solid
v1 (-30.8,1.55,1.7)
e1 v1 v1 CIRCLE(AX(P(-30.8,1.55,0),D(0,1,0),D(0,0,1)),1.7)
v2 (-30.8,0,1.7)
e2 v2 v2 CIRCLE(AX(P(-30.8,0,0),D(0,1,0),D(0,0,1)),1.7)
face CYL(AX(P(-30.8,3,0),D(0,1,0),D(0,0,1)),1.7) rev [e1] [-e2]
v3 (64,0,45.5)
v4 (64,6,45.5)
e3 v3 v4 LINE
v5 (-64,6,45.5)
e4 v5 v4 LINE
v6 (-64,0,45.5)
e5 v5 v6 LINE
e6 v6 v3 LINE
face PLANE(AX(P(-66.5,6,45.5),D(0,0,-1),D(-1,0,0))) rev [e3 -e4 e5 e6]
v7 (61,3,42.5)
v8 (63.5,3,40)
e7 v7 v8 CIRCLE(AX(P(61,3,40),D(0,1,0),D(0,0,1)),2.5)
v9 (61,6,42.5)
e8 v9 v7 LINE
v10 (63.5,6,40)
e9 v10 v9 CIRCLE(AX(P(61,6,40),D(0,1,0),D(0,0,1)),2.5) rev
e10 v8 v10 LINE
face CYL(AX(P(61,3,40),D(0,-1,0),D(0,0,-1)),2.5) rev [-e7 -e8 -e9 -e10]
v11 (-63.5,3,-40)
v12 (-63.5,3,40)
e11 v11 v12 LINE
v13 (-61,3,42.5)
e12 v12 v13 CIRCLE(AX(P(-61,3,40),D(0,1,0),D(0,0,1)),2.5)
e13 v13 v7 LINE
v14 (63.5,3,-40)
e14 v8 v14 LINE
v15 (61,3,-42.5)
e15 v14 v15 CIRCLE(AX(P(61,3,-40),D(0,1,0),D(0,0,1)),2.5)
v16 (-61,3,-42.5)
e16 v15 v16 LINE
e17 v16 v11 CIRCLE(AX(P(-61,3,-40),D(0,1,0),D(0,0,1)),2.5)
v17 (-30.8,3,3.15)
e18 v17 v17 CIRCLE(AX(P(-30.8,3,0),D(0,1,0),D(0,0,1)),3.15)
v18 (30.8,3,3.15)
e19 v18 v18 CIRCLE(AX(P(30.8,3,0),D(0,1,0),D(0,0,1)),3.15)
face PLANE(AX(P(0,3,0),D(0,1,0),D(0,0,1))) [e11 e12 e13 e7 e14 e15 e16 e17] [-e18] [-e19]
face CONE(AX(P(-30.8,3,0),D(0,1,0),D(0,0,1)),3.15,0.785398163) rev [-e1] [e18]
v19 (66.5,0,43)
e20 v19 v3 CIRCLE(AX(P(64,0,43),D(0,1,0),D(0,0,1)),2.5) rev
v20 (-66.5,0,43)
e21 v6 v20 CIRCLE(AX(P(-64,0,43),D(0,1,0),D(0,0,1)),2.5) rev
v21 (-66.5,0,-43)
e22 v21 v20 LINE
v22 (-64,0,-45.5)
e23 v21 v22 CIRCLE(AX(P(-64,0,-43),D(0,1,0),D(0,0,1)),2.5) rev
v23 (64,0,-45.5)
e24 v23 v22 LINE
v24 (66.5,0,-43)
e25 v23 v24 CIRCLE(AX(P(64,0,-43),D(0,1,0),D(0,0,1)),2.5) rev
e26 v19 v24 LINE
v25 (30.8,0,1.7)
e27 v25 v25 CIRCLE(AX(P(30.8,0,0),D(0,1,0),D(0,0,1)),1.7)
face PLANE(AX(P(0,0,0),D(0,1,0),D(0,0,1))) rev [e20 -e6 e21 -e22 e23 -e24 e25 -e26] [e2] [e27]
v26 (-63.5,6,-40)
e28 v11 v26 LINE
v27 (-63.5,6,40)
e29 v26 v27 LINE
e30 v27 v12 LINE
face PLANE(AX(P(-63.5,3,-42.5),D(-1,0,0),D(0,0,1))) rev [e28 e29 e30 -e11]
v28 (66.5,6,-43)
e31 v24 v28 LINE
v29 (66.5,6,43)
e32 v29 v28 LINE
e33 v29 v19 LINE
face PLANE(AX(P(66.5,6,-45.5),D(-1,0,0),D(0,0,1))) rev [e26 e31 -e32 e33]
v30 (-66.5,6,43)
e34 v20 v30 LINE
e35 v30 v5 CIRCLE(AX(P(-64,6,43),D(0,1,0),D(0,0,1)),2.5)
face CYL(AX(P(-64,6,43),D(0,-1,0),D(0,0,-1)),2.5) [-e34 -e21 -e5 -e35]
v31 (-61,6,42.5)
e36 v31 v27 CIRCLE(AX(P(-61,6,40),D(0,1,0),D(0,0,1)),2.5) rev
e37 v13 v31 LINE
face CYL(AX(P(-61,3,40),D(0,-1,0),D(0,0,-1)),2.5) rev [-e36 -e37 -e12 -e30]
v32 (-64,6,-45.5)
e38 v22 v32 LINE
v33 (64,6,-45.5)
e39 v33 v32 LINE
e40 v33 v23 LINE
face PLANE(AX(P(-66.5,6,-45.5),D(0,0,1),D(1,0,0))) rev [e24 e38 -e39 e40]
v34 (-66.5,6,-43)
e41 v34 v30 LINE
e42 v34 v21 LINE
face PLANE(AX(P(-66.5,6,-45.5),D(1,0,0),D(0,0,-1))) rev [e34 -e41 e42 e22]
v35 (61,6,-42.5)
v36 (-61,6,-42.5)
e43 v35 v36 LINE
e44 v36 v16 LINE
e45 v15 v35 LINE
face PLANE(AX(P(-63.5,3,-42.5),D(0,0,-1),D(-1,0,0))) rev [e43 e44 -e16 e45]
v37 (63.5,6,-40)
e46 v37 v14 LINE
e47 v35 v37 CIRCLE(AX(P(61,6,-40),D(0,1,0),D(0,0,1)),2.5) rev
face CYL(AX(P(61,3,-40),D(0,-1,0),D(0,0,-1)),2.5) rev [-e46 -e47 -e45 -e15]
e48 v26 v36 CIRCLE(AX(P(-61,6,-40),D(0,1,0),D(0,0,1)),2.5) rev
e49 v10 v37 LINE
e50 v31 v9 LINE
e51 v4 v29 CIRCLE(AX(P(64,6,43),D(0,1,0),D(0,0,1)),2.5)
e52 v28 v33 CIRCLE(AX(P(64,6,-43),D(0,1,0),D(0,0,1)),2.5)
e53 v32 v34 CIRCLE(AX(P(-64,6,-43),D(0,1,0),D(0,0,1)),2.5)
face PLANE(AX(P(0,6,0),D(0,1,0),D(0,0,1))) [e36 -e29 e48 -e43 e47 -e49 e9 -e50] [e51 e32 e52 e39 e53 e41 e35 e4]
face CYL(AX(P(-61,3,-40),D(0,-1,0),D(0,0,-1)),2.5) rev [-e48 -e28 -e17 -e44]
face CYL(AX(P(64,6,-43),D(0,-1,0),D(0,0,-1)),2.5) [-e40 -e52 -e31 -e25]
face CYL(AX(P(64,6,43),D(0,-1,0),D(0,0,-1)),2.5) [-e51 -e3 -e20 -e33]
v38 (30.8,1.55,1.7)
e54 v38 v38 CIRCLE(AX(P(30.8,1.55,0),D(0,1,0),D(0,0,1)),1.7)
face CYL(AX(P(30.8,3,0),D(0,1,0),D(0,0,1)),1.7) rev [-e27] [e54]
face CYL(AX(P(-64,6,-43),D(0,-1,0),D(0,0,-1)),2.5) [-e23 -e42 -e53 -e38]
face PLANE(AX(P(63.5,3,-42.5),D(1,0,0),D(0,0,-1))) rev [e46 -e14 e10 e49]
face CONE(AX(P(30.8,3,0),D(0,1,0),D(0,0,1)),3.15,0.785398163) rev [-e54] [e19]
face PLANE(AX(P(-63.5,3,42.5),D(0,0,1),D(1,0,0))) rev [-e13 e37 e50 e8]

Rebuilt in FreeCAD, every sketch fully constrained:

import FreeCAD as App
import Part
import Sketcher
from FreeCAD import Vector
Q = App.Units.Quantity


def edges_at(feature, points):
    """Names of the edges that pass closest to the given points."""
    edges = feature.Shape.Edges
    near = lambda p: min(range(len(edges)), key=lambda i: edges[i].distToShape(Part.Vertex(*p))[0])
    return sorted({f"Edge{near(p) + 1}" for p in points})

doc = App.newDocument("Part")
body = doc.addObject("PartDesign::Body", "Body")

sketch1 = doc.addObject("Sketcher::SketchObject", "Sketch")
body.addObject(sketch1)
sketch1.AttachmentSupport = (doc.XZ_Plane, [""])
sketch1.MapMode = "FlatFace"
sketch1.addGeometry([
    Part.LineSegment(Vector(-66, -46, 0), Vector(-66, 46, 0)),
    Part.LineSegment(Vector(-66, 46, 0), Vector(66, 46, 0)),
    Part.LineSegment(Vector(66, 46, 0), Vector(66, -46, 0)),
    Part.LineSegment(Vector(66, -46, 0), Vector(-66, -46, 0)),
], False)
sketch1.addConstraint([
    Sketcher.Constraint("Coincident", 0, 2, 1, 1),
    Sketcher.Constraint("Coincident", 1, 2, 2, 1),
    Sketcher.Constraint("Coincident", 2, 2, 3, 1),
    Sketcher.Constraint("Coincident", 3, 2, 0, 1),
    Sketcher.Constraint("Vertical", 0),
    Sketcher.Constraint("Horizontal", 1),
    Sketcher.Constraint("Vertical", 2),
    Sketcher.Constraint("Horizontal", 3),
    Sketcher.Constraint("Symmetric", 0, 2, 2, 2, -1, 1),
    Sketcher.Constraint("DistanceX", 1, 1, 1, 2, Q("133 mm")),
    Sketcher.Constraint("DistanceY", 0, 1, 0, 2, Q("91 mm")),
])
pad1 = doc.addObject("PartDesign::Pad", "Pad")
body.addObject(pad1)
pad1.Profile = sketch1
pad1.Length = 6
pad1.Reversed = True

sketch2 = doc.addObject("Sketcher::SketchObject", "Sketch001")
body.addObject(sketch2)
sketch2.AttachmentSupport = (doc.XZ_Plane, [""])
sketch2.MapMode = "FlatFace"
sketch2.AttachmentOffset = App.Placement(Vector(0, 0, -6), App.Rotation())
sketch2.addGeometry([
    Part.LineSegment(Vector(-64, -42, 0), Vector(-64, 42, 0)),
    Part.LineSegment(Vector(-64, 42, 0), Vector(64, 42, 0)),
    Part.LineSegment(Vector(64, 42, 0), Vector(64, -42, 0)),
    Part.LineSegment(Vector(64, -42, 0), Vector(-64, -42, 0)),
], False)
sketch2.addConstraint([
    Sketcher.Constraint("Coincident", 0, 2, 1, 1),
    Sketcher.Constraint("Coincident", 1, 2, 2, 1),
    Sketcher.Constraint("Coincident", 2, 2, 3, 1),
    Sketcher.Constraint("Coincident", 3, 2, 0, 1),
    Sketcher.Constraint("Vertical", 0),
    Sketcher.Constraint("Horizontal", 1),
    Sketcher.Constraint("Vertical", 2),
    Sketcher.Constraint("Horizontal", 3),
    Sketcher.Constraint("Symmetric", 0, 2, 2, 2, -1, 1),
    Sketcher.Constraint("DistanceX", 1, 1, 1, 2, Q("127 mm")),
    Sketcher.Constraint("DistanceY", 0, 1, 0, 2, Q("85 mm")),
])
pocket1 = doc.addObject("PartDesign::Pocket", "Pocket")
body.addObject(pocket1)
pocket1.Profile = sketch2
pocket1.Length = 3
pocket1.Reversed = True
doc.recompute()

fillet = doc.addObject("PartDesign::Fillet", "Fillet")
body.addObject(fillet)
fillet.Base = (pocket1, edges_at(pocket1, [
    (63.5, 4.5, -42.5),
    (63.5, 4.5, 42.5),
    (-63.5, 4.5, 42.5),
    (-63.5, 4.5, -42.5),
    (66.5, 3, 45.5),
    (-66.5, 3, 45.5),
    (-66.5, 3, -45.5),
    (66.5, 3, -45.5),
]))
fillet.Radius = 2.5

sketch3 = doc.addObject("Sketcher::SketchObject", "Sketch002")
body.addObject(sketch3)
sketch3.AttachmentSupport = (doc.XZ_Plane, [""])
sketch3.MapMode = "FlatFace"
sketch3.AttachmentOffset = App.Placement(Vector(0, 0, -3), App.Rotation())
sketch3.addGeometry([
    Part.Circle(Vector(-30.8, 0, 0), Vector(0, 0, 1), 1.7),
    Part.Circle(Vector(30.8, 0, 0), Vector(0, 0, 1), 1.7),
], False)
sketch3.addConstraint([
    Sketcher.Constraint("Equal", 0, 1),
    Sketcher.Constraint("Symmetric", 0, 3, 1, 3, -1, 1),
    Sketcher.Constraint("PointOnObject", 0, 3, -1),
    Sketcher.Constraint("Diameter", 0, Q("3.4 mm")),
    Sketcher.Constraint("DistanceX", 0, 3, -1, 1, Q("30.8 mm")),
])
doc.recompute()
hole = doc.addObject("PartDesign::Hole", "Hole")
body.addObject(hole)
hole.Profile = sketch3
hole.ThreadType = "None"
hole.Diameter = 3.4
hole.DepthType = "Dimension"
hole.Depth = 17.38
hole.DrillPoint = "Angled"
hole.DrillPointAngle = 118
hole.HoleCutType = "Countersink"
hole.HoleCutDiameter = 6.3
hole.HoleCutCountersinkAngle = 90
hole.Reversed = True

doc.recompute()
